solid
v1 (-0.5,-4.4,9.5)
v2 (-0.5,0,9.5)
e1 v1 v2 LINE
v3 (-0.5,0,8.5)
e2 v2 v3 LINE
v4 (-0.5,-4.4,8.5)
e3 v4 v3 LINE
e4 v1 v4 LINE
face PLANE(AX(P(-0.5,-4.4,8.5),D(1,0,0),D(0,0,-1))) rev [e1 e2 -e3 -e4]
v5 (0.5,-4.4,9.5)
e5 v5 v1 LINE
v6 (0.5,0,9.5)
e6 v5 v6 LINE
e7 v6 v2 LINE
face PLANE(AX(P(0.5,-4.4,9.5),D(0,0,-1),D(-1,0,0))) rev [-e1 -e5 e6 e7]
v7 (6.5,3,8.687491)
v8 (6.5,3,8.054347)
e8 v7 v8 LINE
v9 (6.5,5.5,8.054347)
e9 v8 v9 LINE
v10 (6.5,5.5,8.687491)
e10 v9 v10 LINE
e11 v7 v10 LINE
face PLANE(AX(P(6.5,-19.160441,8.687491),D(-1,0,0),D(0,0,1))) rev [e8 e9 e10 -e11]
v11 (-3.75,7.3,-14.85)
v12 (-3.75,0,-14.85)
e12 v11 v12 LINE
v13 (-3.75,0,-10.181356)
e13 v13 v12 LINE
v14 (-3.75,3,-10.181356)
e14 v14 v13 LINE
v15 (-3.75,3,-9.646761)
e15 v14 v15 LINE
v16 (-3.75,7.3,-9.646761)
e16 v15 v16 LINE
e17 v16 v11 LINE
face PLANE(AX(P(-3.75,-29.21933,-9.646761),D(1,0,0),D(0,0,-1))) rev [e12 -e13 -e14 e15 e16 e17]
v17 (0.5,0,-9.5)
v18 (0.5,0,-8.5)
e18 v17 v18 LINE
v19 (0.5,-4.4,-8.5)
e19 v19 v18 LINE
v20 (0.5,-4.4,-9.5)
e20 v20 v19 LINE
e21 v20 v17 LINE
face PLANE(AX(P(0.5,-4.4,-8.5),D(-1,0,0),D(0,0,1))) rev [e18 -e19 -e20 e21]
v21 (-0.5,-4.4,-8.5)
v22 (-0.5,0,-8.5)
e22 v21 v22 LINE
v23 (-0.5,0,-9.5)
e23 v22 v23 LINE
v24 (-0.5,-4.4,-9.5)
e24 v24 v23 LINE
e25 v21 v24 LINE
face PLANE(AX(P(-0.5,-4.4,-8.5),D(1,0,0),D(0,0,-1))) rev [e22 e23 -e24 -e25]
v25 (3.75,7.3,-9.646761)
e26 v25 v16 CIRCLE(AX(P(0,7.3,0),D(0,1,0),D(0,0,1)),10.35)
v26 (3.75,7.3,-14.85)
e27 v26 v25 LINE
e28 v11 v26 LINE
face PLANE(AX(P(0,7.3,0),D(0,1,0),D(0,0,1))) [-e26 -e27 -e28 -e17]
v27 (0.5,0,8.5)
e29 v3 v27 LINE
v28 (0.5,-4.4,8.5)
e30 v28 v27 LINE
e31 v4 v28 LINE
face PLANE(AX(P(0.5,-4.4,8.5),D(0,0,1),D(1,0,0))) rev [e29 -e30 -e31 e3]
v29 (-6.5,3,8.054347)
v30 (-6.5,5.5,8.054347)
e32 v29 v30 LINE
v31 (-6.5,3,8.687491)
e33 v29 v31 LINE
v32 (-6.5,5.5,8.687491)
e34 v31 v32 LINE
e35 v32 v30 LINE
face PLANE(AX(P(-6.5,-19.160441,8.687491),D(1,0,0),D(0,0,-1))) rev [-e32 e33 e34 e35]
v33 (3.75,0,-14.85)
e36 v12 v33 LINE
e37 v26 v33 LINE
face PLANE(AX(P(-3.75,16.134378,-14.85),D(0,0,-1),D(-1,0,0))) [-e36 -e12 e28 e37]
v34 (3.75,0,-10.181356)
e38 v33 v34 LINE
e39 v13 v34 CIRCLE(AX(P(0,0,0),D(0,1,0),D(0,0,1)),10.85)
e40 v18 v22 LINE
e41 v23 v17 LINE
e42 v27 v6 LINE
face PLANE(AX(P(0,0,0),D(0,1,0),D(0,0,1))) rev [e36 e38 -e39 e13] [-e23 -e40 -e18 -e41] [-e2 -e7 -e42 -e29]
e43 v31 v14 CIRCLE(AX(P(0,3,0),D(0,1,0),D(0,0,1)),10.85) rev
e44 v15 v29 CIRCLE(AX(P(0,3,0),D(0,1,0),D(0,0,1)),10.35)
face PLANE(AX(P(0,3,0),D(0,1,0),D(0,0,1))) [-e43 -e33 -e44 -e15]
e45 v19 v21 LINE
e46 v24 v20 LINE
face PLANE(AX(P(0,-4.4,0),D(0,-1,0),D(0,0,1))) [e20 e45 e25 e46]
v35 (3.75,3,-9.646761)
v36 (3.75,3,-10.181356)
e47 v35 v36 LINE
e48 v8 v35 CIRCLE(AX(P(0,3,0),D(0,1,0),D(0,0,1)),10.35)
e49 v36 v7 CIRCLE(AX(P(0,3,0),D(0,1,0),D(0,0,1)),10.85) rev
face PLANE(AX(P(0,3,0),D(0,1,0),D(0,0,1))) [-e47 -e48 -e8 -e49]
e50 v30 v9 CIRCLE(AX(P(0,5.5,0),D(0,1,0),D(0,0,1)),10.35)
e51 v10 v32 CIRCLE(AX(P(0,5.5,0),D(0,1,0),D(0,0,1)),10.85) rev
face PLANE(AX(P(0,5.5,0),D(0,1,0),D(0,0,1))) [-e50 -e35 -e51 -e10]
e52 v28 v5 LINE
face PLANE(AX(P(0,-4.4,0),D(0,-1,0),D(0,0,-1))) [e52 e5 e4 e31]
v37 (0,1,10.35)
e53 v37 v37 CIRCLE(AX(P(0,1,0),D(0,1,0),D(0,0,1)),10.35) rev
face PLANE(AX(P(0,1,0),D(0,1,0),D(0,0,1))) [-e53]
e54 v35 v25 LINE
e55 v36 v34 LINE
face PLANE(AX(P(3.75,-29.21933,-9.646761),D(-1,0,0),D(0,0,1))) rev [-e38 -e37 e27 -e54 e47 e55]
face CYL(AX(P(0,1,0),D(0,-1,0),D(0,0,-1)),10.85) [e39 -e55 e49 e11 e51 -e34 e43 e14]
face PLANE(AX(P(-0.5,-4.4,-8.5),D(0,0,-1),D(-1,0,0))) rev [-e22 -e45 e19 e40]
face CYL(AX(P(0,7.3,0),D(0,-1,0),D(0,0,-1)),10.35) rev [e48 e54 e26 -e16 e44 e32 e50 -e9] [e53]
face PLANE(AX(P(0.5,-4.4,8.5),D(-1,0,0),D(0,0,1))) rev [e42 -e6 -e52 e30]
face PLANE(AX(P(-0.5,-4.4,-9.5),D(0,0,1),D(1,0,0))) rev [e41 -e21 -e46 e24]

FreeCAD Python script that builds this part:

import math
import FreeCAD as App
import Part
import Sketcher
from FreeCAD import Vector

doc = App.newDocument("Part")
body = doc.addObject("PartDesign::Body", "Body")

# Sketch on XZ plane
sketch1 = body.newObject("Sketcher::SketchObject", "Sketch")
sketch1.AttachmentSupport = (doc.getObject("XZ_Plane"), [""])
sketch1.MapMode = "FlatFace"
sketch1.addGeometry(Part.Circle(Vector(0, 0, 0), Vector(0, 0, 1), 10.85), False)
sketch1.addConstraint(Sketcher.Constraint("Coincident", 0, 3, -1, 1))
sketch1.addConstraint(Sketcher.Constraint("Diameter", 0, 21.7))
pad1 = body.newObject("PartDesign::Pad", "Pad")
pad1.Profile = sketch1
pad1.Length = 1
pad1.Reversed = True

# Sketch on XZ plane
sketch2 = body.newObject("Sketcher::SketchObject", "Sketch001")
sketch2.AttachmentSupport = (doc.getObject("XZ_Plane"), [""])
sketch2.MapMode = "FlatFace"
sketch2.addGeometry(Part.LineSegment(Vector(-0.5, 9.5, 0), Vector(-0.5, 8.5, 0)), False)
sketch2.addGeometry(Part.LineSegment(Vector(-0.5, 8.5, 0), Vector(0.5, 8.5, 0)), False)
sketch2.addGeometry(Part.LineSegment(Vector(0.5, 8.5, 0), Vector(0.5, 9.5, 0)), False)
sketch2.addGeometry(Part.LineSegment(Vector(0.5, 9.5, 0), Vector(-0.5, 9.5, 0)), False)
sketch2.addConstraint(Sketcher.Constraint("Coincident", 0, 2, 1, 1))
sketch2.addConstraint(Sketcher.Constraint("Coincident", 1, 2, 2, 1))
sketch2.addConstraint(Sketcher.Constraint("Coincident", 2, 2, 3, 1))
sketch2.addConstraint(Sketcher.Constraint("Coincident", 3, 2, 0, 1))
sketch2.addConstraint(Sketcher.Constraint("Vertical", 0))
sketch2.addConstraint(Sketcher.Constraint("Horizontal", 1))
sketch2.addConstraint(Sketcher.Constraint("Vertical", 2))
sketch2.addConstraint(Sketcher.Constraint("Horizontal", 3))
sketch2.addConstraint(Sketcher.Constraint("Equal", 3, 0))
sketch2.addConstraint(Sketcher.Constraint("DistanceX", 1, 1, 1, 2, 1.0))
sketch2.addConstraint(Sketcher.Constraint("DistanceX", 0, 2, -1, 1, 0.5))
sketch2.addConstraint(Sketcher.Constraint("DistanceY", -1, 1, 0, 2, 8.5))
pad2 = body.newObject("PartDesign::Pad", "Pad001")
pad2.Profile = sketch2
pad2.Length = 4.4
doc.recompute()

polarpattern = body.newObject("PartDesign::PolarPattern", "PolarPattern")
polarpattern.Originals = [pad2]
polarpattern.Axis = (doc.getObject("Y_Axis"), [""])
polarpattern.Angle = 360
polarpattern.Occurrences = 2
body.Tip = polarpattern

# Sketch on XZ plane
sketch3 = body.newObject("Sketcher::SketchObject", "Sketch002")
sketch3.AttachmentSupport = (doc.getObject("XZ_Plane"), [""])
sketch3.MapMode = "FlatFace"
sketch3.AttachmentOffset = App.Placement(Vector(0, 0, -1), App.Rotation())
sketch3.addGeometry(Part.Circle(Vector(0, 0, 0), Vector(0, 0, 1), 10.85), False)
sketch3.addGeometry(Part.Circle(Vector(0, 0, 0), Vector(0, 0, 1), 10.35), False)
sketch3.addConstraint(Sketcher.Constraint("Coincident", 0, 3, -1, 1))
sketch3.addConstraint(Sketcher.Constraint("Coincident", 1, 3, -1, 1))
sketch3.addConstraint(Sketcher.Constraint("Diameter", 0, 21.7))
sketch3.addConstraint(Sketcher.Constraint("Diameter", 1, 20.7))
pad3 = body.newObject("PartDesign::Pad", "Pad002")
pad3.Profile = sketch3
pad3.Length = 6.3
pad3.Reversed = True

# Sketch on XZ plane
sketch4 = body.newObject("Sketcher::SketchObject", "Sketch003")
sketch4.AttachmentSupport = (doc.getObject("XZ_Plane"), [""])
sketch4.MapMode = "FlatFace"
sketch4.AttachmentOffset = App.Placement(Vector(0, 0, -7.3), App.Rotation())
sketch4.addGeometry(Part.LineSegment(Vector(-3.75, -9.646761, 0), Vector(-3.75, -10.181356, 0)), False)
sketch4.addGeometry(Part.ArcOfCircle(Part.Circle(Vector(0, 0, 0), Vector(0, 0, 1), 10.85), math.radians(-69.780223), math.radians(249.780223)), False)
sketch4.addGeometry(Part.LineSegment(Vector(3.75, -10.181356, 0), Vector(3.75, -9.646761, 0)), False)
sketch4.addGeometry(Part.ArcOfCircle(Part.Circle(Vector(0, 0, 0), Vector(0, 0, 1), 10.35), math.radians(-68.757328), math.radians(248.757328)), False)
sketch4.addConstraint(Sketcher.Constraint("Coincident", 0, 2, 1, 2))
sketch4.addConstraint(Sketcher.Constraint("Coincident", 1, 1, 2, 1))
sketch4.addConstraint(Sketcher.Constraint("Coincident", 2, 2, 3, 1))
sketch4.addConstraint(Sketcher.Constraint("Coincident", 3, 2, 0, 1))
sketch4.addConstraint(Sketcher.Constraint("Vertical", 0))
sketch4.addConstraint(Sketcher.Constraint("Vertical", 2))
sketch4.addConstraint(Sketcher.Constraint("Coincident", 1, 3, -1, 1))
sketch4.addConstraint(Sketcher.Constraint("Coincident", 3, 3, -1, 1))
sketch4.addConstraint(Sketcher.Constraint("Horizontal", 0, 2, 1, 1))
sketch4.addConstraint(Sketcher.Constraint("Radius", 1, 10.85))
sketch4.addConstraint(Sketcher.Constraint("Radius", 3, 10.35))
sketch4.addConstraint(Sketcher.Constraint("DistanceX", 0, 2, 1, 1, 7.5))
pocket1 = body.newObject("PartDesign::Pocket", "Pocket")
pocket1.Profile = sketch4
pocket1.Length = 1.8
pocket1.Reversed = True

# Sketch on XZ plane
sketch5 = body.newObject("Sketcher::SketchObject", "Sketch004")
sketch5.AttachmentSupport = (doc.getObject("XZ_Plane"), [""])
sketch5.MapMode = "FlatFace"
sketch5.AttachmentOffset = App.Placement(Vector(0, 0, -5.5), App.Rotation())
sketch5.addGeometry(Part.LineSegment(Vector(-6.5, 8.687491, 0), Vector(-6.5, 8.054347, 0)), False)
sketch5.addGeometry(Part.ArcOfCircle(Part.Circle(Vector(0, 0, 0), Vector(0, 0, 1), 10.35), math.radians(128.904143), math.radians(248.757328)), False)
sketch5.addGeometry(Part.LineSegment(Vector(-3.75, -9.646761, 0), Vector(-3.75, -10.181356, 0)), False)
sketch5.addGeometry(Part.ArcOfCircle(Part.Circle(Vector(0, 0, 0), Vector(0, 0, 1), 10.85), math.radians(126.803917), math.radians(249.780223)), False)
sketch5.addGeometry(Part.LineSegment(Vector(6.5, 8.054347, 0), Vector(6.5, 8.687491, 0)), False)
sketch5.addGeometry(Part.ArcOfCircle(Part.Circle(Vector(0, 0, 0), Vector(0, 0, 1), 10.85), math.radians(-69.780223), math.radians(53.196083)), False)
sketch5.addGeometry(Part.LineSegment(Vector(3.75, -10.181356, 0), Vector(3.75, -9.646761, 0)), False)
sketch5.addGeometry(Part.ArcOfCircle(Part.Circle(Vector(0, 0, 0), Vector(0, 0, 1), 10.35), math.radians(-68.757328), math.radians(51.095857)), False)
sketch5.addConstraint(Sketcher.Constraint("Coincident", 0, 2, 1, 1))
sketch5.addConstraint(Sketcher.Constraint("Coincident", 1, 2, 2, 1))
sketch5.addConstraint(Sketcher.Constraint("Coincident", 2, 2, 3, 2))
sketch5.addConstraint(Sketcher.Constraint("Coincident", 3, 1, 0, 1))
sketch5.addConstraint(Sketcher.Constraint("Coincident", 4, 2, 5, 2))
sketch5.addConstraint(Sketcher.Constraint("Coincident", 5, 1, 6, 1))
sketch5.addConstraint(Sketcher.Constraint("Coincident", 6, 2, 7, 1))
sketch5.addConstraint(Sketcher.Constraint("Coincident", 7, 2, 4, 1))
sketch5.addConstraint(Sketcher.Constraint("Vertical", 0))
sketch5.addConstraint(Sketcher.Constraint("Vertical", 2))
sketch5.addConstraint(Sketcher.Constraint("Vertical", 4))
sketch5.addConstraint(Sketcher.Constraint("Vertical", 6))
sketch5.addConstraint(Sketcher.Constraint("Coincident", 1, 3, -1, 1))
sketch5.addConstraint(Sketcher.Constraint("Coincident", 3, 3, -1, 1))
sketch5.addConstraint(Sketcher.Constraint("Coincident", 5, 3, -1, 1))
sketch5.addConstraint(Sketcher.Constraint("Coincident", 7, 3, -1, 1))
sketch5.addConstraint(Sketcher.Constraint("Equal", 3, 5))
sketch5.addConstraint(Sketcher.Constraint("Equal", 1, 7))
sketch5.addConstraint(Sketcher.Constraint("Horizontal", 3, 1, 4, 2))
sketch5.addConstraint(Sketcher.Constraint("Horizontal", 2, 2, 5, 1))
sketch5.addConstraint(Sketcher.Constraint("Radius", 1, 10.35))
sketch5.addConstraint(Sketcher.Constraint("Radius", 3, 10.85))
sketch5.addConstraint(Sketcher.Constraint("DistanceX", 3, 1, 4, 2, 13.0))
sketch5.addConstraint(Sketcher.Constraint("DistanceX", 2, 2, 5, 1, 7.5))
pocket2 = body.newObject("PartDesign::Pocket", "Pocket001")
pocket2.Profile = sketch5
pocket2.Type = "TwoLengths"
pocket2.Length = 2.8
pocket2.Length2 = 2.5

# Sketch on XZ plane
sketch6 = body.newObject("Sketcher::SketchObject", "Sketch005")
sketch6.AttachmentSupport = (doc.getObject("XZ_Plane"), [""])
sketch6.MapMode = "FlatFace"
sketch6.addGeometry(Part.LineSegment(Vector(-3.75, -10.181356, 0), Vector(-3.75, -14.85, 0)), False)
sketch6.addGeometry(Part.LineSegment(Vector(-3.75, -14.85, 0), Vector(3.75, -14.85, 0)), False)
sketch6.addGeometry(Part.LineSegment(Vector(3.75, -14.85, 0), Vector(3.75, -10.181356, 0)), False)
sketch6.addGeometry(Part.ArcOfCircle(Part.Circle(Vector(0, 0, 0), Vector(0, 0, 1), 10.85), math.radians(-110.219777), math.radians(-69.780223)), False)
sketch6.addConstraint(Sketcher.Constraint("Coincident", 0, 2, 1, 1))
sketch6.addConstraint(Sketcher.Constraint("Coincident", 1, 2, 2, 1))
sketch6.addConstraint(Sketcher.Constraint("Coincident", 2, 2, 3, 2))
sketch6.addConstraint(Sketcher.Constraint("Coincident", 3, 1, 0, 1))
sketch6.addConstraint(Sketcher.Constraint("Vertical", 0))
sketch6.addConstraint(Sketcher.Constraint("Horizontal", 1))
sketch6.addConstraint(Sketcher.Constraint("Vertical", 2))
sketch6.addConstraint(Sketcher.Constraint("Coincident", 3, 3, -1, 1))
sketch6.addConstraint(Sketcher.Constraint("Horizontal", 2, 2, 3, 1))
sketch6.addConstraint(Sketcher.Constraint("Radius", 3, 10.85))
sketch6.addConstraint(Sketcher.Constraint("DistanceX", 1, 1, 1, 2, 7.5))
sketch6.addConstraint(Sketcher.Constraint("DistanceY", 0, 2, -1, 1, 14.85))
pad4 = body.newObject("PartDesign::Pad", "Pad003")
pad4.Profile = sketch6
pad4.Length = 7.3
pad4.Reversed = True

doc.recompute()
